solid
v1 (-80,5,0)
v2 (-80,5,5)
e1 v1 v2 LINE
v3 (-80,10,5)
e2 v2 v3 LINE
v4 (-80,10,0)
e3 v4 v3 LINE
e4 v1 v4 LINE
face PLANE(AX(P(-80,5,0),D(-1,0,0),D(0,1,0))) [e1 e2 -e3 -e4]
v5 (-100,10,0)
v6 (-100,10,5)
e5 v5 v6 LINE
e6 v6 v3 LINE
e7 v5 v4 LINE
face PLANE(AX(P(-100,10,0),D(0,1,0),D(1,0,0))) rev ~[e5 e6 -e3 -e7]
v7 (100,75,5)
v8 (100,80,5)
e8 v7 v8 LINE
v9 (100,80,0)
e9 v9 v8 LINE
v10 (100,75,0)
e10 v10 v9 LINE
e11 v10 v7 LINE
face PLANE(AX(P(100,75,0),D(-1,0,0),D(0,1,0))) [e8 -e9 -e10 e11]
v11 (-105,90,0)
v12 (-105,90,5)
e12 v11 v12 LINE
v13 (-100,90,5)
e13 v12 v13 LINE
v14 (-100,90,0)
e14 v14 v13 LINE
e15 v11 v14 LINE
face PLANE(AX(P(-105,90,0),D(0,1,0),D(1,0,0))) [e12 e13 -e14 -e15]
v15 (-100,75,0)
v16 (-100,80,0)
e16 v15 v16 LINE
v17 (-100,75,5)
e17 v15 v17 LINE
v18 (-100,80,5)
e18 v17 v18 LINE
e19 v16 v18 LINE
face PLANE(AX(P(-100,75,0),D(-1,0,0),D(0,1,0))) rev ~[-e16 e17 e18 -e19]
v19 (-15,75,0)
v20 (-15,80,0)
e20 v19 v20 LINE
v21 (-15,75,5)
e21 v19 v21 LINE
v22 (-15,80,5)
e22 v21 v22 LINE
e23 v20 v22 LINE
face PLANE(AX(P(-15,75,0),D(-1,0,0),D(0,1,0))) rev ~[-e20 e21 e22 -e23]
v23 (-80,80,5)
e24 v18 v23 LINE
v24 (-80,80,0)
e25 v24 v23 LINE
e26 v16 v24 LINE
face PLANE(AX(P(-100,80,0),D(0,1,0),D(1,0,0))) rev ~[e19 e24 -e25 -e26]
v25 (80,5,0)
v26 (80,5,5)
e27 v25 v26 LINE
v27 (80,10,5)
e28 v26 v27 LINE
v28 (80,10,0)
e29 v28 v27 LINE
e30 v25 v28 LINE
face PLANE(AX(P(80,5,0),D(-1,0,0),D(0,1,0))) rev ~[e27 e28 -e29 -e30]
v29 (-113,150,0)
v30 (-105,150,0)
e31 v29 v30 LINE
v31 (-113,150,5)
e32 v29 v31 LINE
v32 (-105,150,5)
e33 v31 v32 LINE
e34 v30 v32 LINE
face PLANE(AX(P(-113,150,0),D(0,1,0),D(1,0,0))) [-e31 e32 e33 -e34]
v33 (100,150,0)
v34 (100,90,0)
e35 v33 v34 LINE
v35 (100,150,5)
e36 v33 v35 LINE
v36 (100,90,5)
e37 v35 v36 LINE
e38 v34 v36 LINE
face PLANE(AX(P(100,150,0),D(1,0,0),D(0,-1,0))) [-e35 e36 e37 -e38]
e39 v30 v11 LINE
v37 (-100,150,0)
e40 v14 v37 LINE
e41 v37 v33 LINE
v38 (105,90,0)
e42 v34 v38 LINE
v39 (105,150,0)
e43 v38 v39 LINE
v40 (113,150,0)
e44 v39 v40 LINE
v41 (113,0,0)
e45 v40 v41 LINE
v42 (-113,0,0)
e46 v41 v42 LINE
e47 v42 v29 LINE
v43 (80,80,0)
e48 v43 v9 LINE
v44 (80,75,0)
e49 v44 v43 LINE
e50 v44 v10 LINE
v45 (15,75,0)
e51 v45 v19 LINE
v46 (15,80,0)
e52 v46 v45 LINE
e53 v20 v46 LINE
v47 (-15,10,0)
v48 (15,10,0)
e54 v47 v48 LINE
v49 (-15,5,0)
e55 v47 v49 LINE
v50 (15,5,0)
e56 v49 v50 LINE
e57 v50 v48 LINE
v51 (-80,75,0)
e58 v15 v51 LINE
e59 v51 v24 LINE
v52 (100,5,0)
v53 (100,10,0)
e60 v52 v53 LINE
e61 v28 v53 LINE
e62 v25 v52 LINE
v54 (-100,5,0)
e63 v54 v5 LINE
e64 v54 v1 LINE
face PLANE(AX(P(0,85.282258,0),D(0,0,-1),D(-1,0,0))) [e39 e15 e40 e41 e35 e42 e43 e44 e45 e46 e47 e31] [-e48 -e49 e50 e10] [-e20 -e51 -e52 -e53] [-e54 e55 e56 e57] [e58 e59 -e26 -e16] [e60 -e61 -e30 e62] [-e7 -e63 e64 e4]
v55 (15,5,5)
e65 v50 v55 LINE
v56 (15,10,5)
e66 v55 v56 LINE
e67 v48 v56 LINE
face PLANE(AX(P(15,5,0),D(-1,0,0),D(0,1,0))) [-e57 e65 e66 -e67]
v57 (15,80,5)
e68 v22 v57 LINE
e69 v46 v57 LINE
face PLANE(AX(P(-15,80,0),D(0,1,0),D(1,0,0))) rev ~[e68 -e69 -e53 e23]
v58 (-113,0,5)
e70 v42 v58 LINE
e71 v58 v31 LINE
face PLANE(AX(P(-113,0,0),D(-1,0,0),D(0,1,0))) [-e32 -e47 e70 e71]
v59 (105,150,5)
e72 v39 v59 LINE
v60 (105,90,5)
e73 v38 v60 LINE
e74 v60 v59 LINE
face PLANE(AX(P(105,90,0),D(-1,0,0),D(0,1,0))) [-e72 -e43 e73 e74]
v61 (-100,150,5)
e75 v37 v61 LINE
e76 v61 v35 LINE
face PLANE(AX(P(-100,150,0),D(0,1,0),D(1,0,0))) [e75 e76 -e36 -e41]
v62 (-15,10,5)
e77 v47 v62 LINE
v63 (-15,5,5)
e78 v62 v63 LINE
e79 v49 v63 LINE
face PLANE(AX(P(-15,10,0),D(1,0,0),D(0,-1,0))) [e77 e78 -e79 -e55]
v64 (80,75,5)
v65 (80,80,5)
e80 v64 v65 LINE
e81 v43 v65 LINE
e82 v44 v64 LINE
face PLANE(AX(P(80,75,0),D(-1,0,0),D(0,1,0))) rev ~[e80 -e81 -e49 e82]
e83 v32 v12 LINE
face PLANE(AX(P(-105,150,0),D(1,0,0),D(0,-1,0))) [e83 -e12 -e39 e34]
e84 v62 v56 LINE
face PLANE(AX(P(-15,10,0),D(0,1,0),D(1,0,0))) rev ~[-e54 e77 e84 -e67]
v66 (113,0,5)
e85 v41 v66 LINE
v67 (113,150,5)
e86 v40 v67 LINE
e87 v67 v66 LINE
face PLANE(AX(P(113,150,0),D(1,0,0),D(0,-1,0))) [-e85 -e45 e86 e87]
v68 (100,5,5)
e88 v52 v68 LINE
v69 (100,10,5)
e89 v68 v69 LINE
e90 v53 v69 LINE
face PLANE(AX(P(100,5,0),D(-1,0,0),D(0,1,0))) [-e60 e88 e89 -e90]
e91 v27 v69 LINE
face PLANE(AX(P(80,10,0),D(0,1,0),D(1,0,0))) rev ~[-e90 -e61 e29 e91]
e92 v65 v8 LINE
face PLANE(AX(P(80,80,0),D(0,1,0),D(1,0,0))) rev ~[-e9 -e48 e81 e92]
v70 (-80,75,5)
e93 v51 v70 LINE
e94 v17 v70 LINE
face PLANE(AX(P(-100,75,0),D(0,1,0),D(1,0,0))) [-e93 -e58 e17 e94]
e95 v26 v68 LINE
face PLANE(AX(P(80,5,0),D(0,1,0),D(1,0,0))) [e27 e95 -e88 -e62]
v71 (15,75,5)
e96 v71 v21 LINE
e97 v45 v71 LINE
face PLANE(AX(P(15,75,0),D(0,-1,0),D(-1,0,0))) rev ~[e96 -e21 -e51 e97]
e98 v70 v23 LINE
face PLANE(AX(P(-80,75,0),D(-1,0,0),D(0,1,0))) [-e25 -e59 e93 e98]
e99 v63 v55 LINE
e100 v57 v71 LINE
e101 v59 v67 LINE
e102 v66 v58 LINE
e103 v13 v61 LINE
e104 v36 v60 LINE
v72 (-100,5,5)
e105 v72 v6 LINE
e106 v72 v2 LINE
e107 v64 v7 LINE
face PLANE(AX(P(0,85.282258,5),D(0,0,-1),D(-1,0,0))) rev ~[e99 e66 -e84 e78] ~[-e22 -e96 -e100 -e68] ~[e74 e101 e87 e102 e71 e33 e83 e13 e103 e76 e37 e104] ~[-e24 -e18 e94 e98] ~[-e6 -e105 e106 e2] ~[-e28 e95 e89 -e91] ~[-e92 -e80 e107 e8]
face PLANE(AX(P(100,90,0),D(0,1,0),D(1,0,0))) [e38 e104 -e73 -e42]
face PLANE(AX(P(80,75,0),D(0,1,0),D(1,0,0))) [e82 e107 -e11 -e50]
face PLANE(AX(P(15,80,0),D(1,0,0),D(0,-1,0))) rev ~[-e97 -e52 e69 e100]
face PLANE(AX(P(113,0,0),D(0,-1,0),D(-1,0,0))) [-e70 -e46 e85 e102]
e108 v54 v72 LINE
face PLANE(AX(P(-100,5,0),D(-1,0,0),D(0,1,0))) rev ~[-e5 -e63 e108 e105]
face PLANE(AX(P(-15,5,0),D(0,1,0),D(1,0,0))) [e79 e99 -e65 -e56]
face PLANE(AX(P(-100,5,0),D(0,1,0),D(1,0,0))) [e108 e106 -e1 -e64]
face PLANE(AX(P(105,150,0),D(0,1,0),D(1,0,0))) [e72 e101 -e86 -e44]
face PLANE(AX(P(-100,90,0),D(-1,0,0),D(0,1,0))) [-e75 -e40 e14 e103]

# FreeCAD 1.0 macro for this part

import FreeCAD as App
import Part
import Sketcher

V = App.Vector
Q = App.Units.Quantity


def add_polygon(sketch, points):
    """Adds a closed chain of lines whose ends are joined by coincident constraints."""
    first, n = sketch.GeometryCount, len(points)
    for a, b in zip(points, points[1:] + points[:1]):
        sketch.addGeometry(Part.LineSegment(App.Vector(*a, 0), App.Vector(*b, 0)), False)
    for i in range(n):
        sketch.addConstraint(Sketcher.Constraint("Coincident", first + i, 2, first + (i + 1) % n, 1))

doc = App.newDocument("Part")
params = doc.addObject("Spreadsheet::Sheet", "Params")
for row, (alias, value) in enumerate([
    ("sketch1_width", "200 mm"),
    ("sketch1_width2", "5 mm"),
    ("sketch1_width3", "8 mm"),
    ("sketch1_width4", "20 mm"),
    ("sketch1_width5", "30 mm"),
    ("pad1_length", "5 mm"),
], start=1):
    params.set(f"A{row}", alias)
    params.set(f"B{row}", "=" + value)
    params.setAlias(f"B{row}", alias)

body = doc.addObject("PartDesign::Body", "Body")

# Sketch on XY plane
sketch1 = body.newObject("Sketcher::SketchObject", "Sketch")
sketch1.AttachmentSupport = (doc.getObject("XY_Plane"), [""])
sketch1.MapMode = "FlatFace"
add_polygon(sketch1, [(100, 150), (-100, 150), (-100, 90), (-105, 90), (-105, 150), (-113, 150), (-113, 0), (113, 0), (113, 150), (105, 150), (105, 90), (100, 90)])  # lines 0-11
add_polygon(sketch1, [(80, 5), (80, 10), (100, 10), (100, 5)])  # lines 12-15
add_polygon(sketch1, [(-15, 5), (-15, 10), (15, 10), (15, 5)])  # lines 16-19
add_polygon(sketch1, [(-100, 5), (-100, 10), (-80, 10), (-80, 5)])  # lines 20-23
add_polygon(sketch1, [(80, 75), (80, 80), (100, 80), (100, 75)])  # lines 24-27
add_polygon(sketch1, [(-15, 80), (15, 80), (15, 75), (-15, 75)])  # lines 28-31
add_polygon(sketch1, [(-100, 75), (-100, 80), (-80, 80), (-80, 75)])  # lines 32-35
sketch1.addConstraint([
    Sketcher.Constraint("Horizontal", 0),
    Sketcher.Constraint("Vertical", 1),
    Sketcher.Constraint("Horizontal", 2),
    Sketcher.Constraint("Vertical", 3),
    Sketcher.Constraint("Horizontal", 4),
    Sketcher.Constraint("Vertical", 5),
    Sketcher.Constraint("Horizontal", 6),
    Sketcher.Constraint("Vertical", 7),
    Sketcher.Constraint("Horizontal", 8),
    Sketcher.Constraint("Vertical", 9),
    Sketcher.Constraint("Horizontal", 10),
    Sketcher.Constraint("Vertical", 11),
    Sketcher.Constraint("Vertical", 12),
    Sketcher.Constraint("Horizontal", 13),
    Sketcher.Constraint("Vertical", 14),
    Sketcher.Constraint("Horizontal", 15),
    Sketcher.Constraint("Vertical", 16),
    Sketcher.Constraint("Horizontal", 17),
    Sketcher.Constraint("Vertical", 18),
    Sketcher.Constraint("Horizontal", 19),
    Sketcher.Constraint("Vertical", 20),
    Sketcher.Constraint("Horizontal", 21),
    Sketcher.Constraint("Vertical", 22),
    Sketcher.Constraint("Horizontal", 23),
    Sketcher.Constraint("Vertical", 24),
    Sketcher.Constraint("Horizontal", 25),
    Sketcher.Constraint("Vertical", 26),
    Sketcher.Constraint("Horizontal", 27),
    Sketcher.Constraint("Horizontal", 28),
    Sketcher.Constraint("Vertical", 29),
    Sketcher.Constraint("Horizontal", 30),
    Sketcher.Constraint("Vertical", 31),
    Sketcher.Constraint("Vertical", 32),
    Sketcher.Constraint("Horizontal", 33),
    Sketcher.Constraint("Vertical", 34),
    Sketcher.Constraint("Horizontal", 35),
    Sketcher.Constraint("Symmetric", 5, 2, 6, 2, -1, 1),
    Sketcher.Constraint("Symmetric", 3, 2, 8, 2, -2),
    Sketcher.Constraint("Symmetric", 1, 2, 10, 2, -2),
    Sketcher.Constraint("Symmetric", 13, 2, 20, 2, -2),
    Sketcher.Constraint("Symmetric", 15, 2, 22, 2, -2),
    Sketcher.Constraint("Symmetric", 25, 2, 32, 2, -2),
    Sketcher.Constraint("Symmetric", 27, 2, 34, 2, -2),
    Sketcher.Constraint("Horizontal", 0, 2, 3, 2),
    Sketcher.Constraint("Horizontal", 13, 2, 16, 2),
    Sketcher.Constraint("Horizontal", 15, 2, 18, 2),
    Sketcher.Constraint("Horizontal", 25, 2, 28, 2),
    Sketcher.Constraint("Horizontal", 27, 2, 29, 2),
    Sketcher.Constraint("Vertical", 11, 2, 13, 2),
    Sketcher.Constraint("Vertical", 15, 2, 24, 2),
    Sketcher.Constraint("Vertical", 14, 2, 25, 2),
    Sketcher.Constraint("Vertical", 18, 2, 28, 2),
    Sketcher.Constraint("Vertical", 19, 2, 30, 2),
    Sketcher.Constraint("Equal", 10, 12),
    Sketcher.Constraint("Equal", 22, 24),
    Sketcher.Constraint("DistanceX", 0, 2, 0, 1, Q("200 mm")),
    Sketcher.Constraint("DistanceX", 2, 2, 2, 1, Q("5 mm")),
    Sketcher.Constraint("DistanceX", 4, 2, 4, 1, Q("8 mm")),
    Sketcher.Constraint("DistanceX", 13, 1, 13, 2, Q("20 mm")),
    Sketcher.Constraint("DistanceX", 17, 1, 17, 2, Q("30 mm")),
    Sketcher.Constraint("DistanceY", 1, 2, 1, 1, Q("60 mm")),
    Sketcher.Constraint("DistanceY", 5, 2, 5, 1, Q("150 mm")),
    Sketcher.Constraint("DistanceY", -1, 1, 12, 2, Q("10 mm")),
    Sketcher.Constraint("DistanceX", 16, 2, -1, 1, Q("15 mm")),
    Sketcher.Constraint("DistanceY", -1, 1, 24, 2, Q("80 mm")),
])
sketch1.setExpression("Constraints[91]", "Params.sketch1_width")
sketch1.setExpression("Constraints[92]", "Params.sketch1_width2")
sketch1.setExpression("Constraints[93]", "Params.sketch1_width3")
sketch1.setExpression("Constraints[94]", "Params.sketch1_width4")
sketch1.setExpression("Constraints[95]", "Params.sketch1_width5")
pad1 = body.newObject("PartDesign::Pad", "Pad")
pad1.Profile = sketch1
pad1.setExpression("Length", "Params.pad1_length")

doc.recompute()
